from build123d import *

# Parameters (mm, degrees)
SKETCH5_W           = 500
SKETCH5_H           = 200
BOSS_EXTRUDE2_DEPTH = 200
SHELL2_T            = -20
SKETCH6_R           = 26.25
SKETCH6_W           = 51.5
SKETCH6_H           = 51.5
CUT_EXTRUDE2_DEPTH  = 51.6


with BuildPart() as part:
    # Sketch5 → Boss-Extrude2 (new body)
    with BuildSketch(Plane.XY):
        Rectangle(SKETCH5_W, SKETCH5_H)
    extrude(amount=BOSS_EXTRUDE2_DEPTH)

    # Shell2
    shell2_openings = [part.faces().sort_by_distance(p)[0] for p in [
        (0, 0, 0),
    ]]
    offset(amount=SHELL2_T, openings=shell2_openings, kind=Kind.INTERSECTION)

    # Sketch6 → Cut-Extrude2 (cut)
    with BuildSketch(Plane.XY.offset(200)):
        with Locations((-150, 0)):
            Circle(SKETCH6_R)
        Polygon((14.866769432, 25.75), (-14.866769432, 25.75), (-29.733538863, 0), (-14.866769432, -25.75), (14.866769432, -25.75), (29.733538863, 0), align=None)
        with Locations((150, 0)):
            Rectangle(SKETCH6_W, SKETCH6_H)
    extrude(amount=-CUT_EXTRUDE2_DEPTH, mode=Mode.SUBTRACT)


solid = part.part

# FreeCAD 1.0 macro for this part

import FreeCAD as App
import Part
import Sketcher
from FreeCAD import Vector
Q = App.Units.Quantity


def faces_at(feature, points):
    """Names of the faces that lie closest to the given points."""
    faces = feature.Shape.Faces
    near = lambda p: min(range(len(faces)), key=lambda i: faces[i].distToShape(Part.Vertex(*p))[0])
    return sorted({f"Face{near(p) + 1}" for p in points})

doc = App.newDocument("Part")
body = doc.addObject("PartDesign::Body", "Body")

sketch1 = doc.addObject("Sketcher::SketchObject", "Sketch")
body.addObject(sketch1)
sketch1.AttachmentSupport = (doc.XY_Plane, [""])
sketch1.MapMode = "FlatFace"
sketch1.addGeometry(Part.LineSegment(Vector(-250, 100, 0), Vector(-250, -100, 0)), False)
sketch1.addGeometry(Part.LineSegment(Vector(-250, -100, 0), Vector(250, -100, 0)), False)
sketch1.addGeometry(Part.LineSegment(Vector(250, -100, 0), Vector(250, 100, 0)), False)
sketch1.addGeometry(Part.LineSegment(Vector(250, 100, 0), Vector(-250, 100, 0)), False)
sketch1.addConstraint(Sketcher.Constraint("Coincident", 0, 2, 1, 1))
sketch1.addConstraint(Sketcher.Constraint("Coincident", 1, 2, 2, 1))
sketch1.addConstraint(Sketcher.Constraint("Coincident", 2, 2, 3, 1))
sketch1.addConstraint(Sketcher.Constraint("Coincident", 3, 2, 0, 1))
sketch1.addConstraint(Sketcher.Constraint("Vertical", 0))
sketch1.addConstraint(Sketcher.Constraint("Horizontal", 1))
sketch1.addConstraint(Sketcher.Constraint("Vertical", 2))
sketch1.addConstraint(Sketcher.Constraint("Horizontal", 3))
sketch1.addConstraint(Sketcher.Constraint("Symmetric", 0, 2, 2, 2, -1, 1))
sketch1.addConstraint(Sketcher.Constraint("DistanceX", 1, 1, 1, 2, Q("500 mm")))
sketch1.addConstraint(Sketcher.Constraint("DistanceY", 0, 2, 0, 1, Q("200 mm")))
pad1 = doc.addObject("PartDesign::Pad", "Pad")
body.addObject(pad1)
pad1.Profile = sketch1
pad1.Length = 200
doc.recompute()

thickness = doc.addObject("PartDesign::Thickness", "Thickness")
body.addObject(thickness)
thickness.Base = (pad1, faces_at(pad1, [(0, 0, 0)]))
thickness.Value = 20
thickness.Reversed = True
thickness.Join = "Intersection"

sketch2 = doc.addObject("Sketcher::SketchObject", "Sketch001")
body.addObject(sketch2)
sketch2.AttachmentSupport = (doc.XY_Plane, [""])
sketch2.MapMode = "FlatFace"
sketch2.AttachmentOffset = App.Placement(Vector(0, 0, 200), App.Rotation())
sketch2.addGeometry(Part.Circle(Vector(-150, 0, 0), Vector(0, 0, 1), 26), False)
sketch2.addGeometry(Part.LineSegment(Vector(15, 26, 0), Vector(-15, 26, 0)), False)
sketch2.addGeometry(Part.LineSegment(Vector(-15, 26, 0), Vector(-30, 0, 0)), False)
sketch2.addGeometry(Part.LineSegment(Vector(-30, 0, 0), Vector(-15, -26, 0)), False)
sketch2.addGeometry(Part.LineSegment(Vector(-15, -26, 0), Vector(15, -26, 0)), False)
sketch2.addGeometry(Part.LineSegment(Vector(15, -26, 0), Vector(30, 0, 0)), False)
sketch2.addGeometry(Part.LineSegment(Vector(30, 0, 0), Vector(15, 26, 0)), False)
sketch2.addGeometry(Part.LineSegment(Vector(124, 26, 0), Vector(124, -26, 0)), False)
sketch2.addGeometry(Part.LineSegment(Vector(124, -26, 0), Vector(176, -26, 0)), False)
sketch2.addGeometry(Part.LineSegment(Vector(176, -26, 0), Vector(176, 26, 0)), False)
sketch2.addGeometry(Part.LineSegment(Vector(176, 26, 0), Vector(124, 26, 0)), False)
sketch2.addConstraint(Sketcher.Constraint("Coincident", 1, 2, 2, 1))
sketch2.addConstraint(Sketcher.Constraint("Coincident", 2, 2, 3, 1))
sketch2.addConstraint(Sketcher.Constraint("Coincident", 3, 2, 4, 1))
sketch2.addConstraint(Sketcher.Constraint("Coincident", 4, 2, 5, 1))
sketch2.addConstraint(Sketcher.Constraint("Coincident", 5, 2, 6, 1))
sketch2.addConstraint(Sketcher.Constraint("Coincident", 6, 2, 1, 1))
sketch2.addConstraint(Sketcher.Constraint("Coincident", 7, 2, 8, 1))
sketch2.addConstraint(Sketcher.Constraint("Coincident", 8, 2, 9, 1))
sketch2.addConstraint(Sketcher.Constraint("Coincident", 9, 2, 10, 1))
sketch2.addConstraint(Sketcher.Constraint("Coincident", 10, 2, 7, 1))
sketch2.addConstraint(Sketcher.Constraint("Horizontal", 1))
sketch2.addConstraint(Sketcher.Constraint("Horizontal", 4))
sketch2.addConstraint(Sketcher.Constraint("Vertical", 7))
sketch2.addConstraint(Sketcher.Constraint("Horizontal", 8))
sketch2.addConstraint(Sketcher.Constraint("Vertical", 9))
sketch2.addConstraint(Sketcher.Constraint("Horizontal", 10))
sketch2.addConstraint(Sketcher.Constraint("Symmetric", 1, 2, 4, 2, -1, 1))
sketch2.addConstraint(Sketcher.Constraint("Symmetric", 2, 2, 5, 2, -1, 1))
sketch2.addConstraint(Sketcher.Constraint("PointOnObject", 0, 3, -1))
sketch2.addConstraint(Sketcher.Constraint("PointOnObject", 2, 2, -1))
sketch2.addConstraint(Sketcher.Constraint("Parallel", 3, 6))
sketch2.addConstraint(Sketcher.Constraint("Horizontal", 4, 2, 7, 2))
sketch2.addConstraint(Sketcher.Constraint("Horizontal", 6, 2, 9, 2))
sketch2.addConstraint(Sketcher.Constraint("Vertical", 1, 2, 3, 2))
sketch2.addConstraint(Sketcher.Constraint("Equal", 10, 7))
sketch2.addConstraint(Sketcher.Constraint("Diameter", 0, Q("52.5 mm")))
sketch2.addConstraint(Sketcher.Constraint("Angle", 2, Q("-120 deg")))
sketch2.addConstraint(Sketcher.Constraint("DistanceX", 8, 1, 8, 2, Q("51.5 mm")))
sketch2.addConstraint(Sketcher.Constraint("DistanceX", 0, 3, -1, 1, Q("150 mm")))
sketch2.addConstraint(Sketcher.Constraint("DistanceX", -1, 1, 7, 2, Q("124.25 mm")))
sketch2.addConstraint(Sketcher.Constraint("DistanceX", 1, 2, 1, 1, Q("29.733539 mm")))
pocket1 = doc.addObject("PartDesign::Pocket", "Pocket")
body.addObject(pocket1)
pocket1.Profile = sketch2
pocket1.Length = 51.6

doc.recompute()
